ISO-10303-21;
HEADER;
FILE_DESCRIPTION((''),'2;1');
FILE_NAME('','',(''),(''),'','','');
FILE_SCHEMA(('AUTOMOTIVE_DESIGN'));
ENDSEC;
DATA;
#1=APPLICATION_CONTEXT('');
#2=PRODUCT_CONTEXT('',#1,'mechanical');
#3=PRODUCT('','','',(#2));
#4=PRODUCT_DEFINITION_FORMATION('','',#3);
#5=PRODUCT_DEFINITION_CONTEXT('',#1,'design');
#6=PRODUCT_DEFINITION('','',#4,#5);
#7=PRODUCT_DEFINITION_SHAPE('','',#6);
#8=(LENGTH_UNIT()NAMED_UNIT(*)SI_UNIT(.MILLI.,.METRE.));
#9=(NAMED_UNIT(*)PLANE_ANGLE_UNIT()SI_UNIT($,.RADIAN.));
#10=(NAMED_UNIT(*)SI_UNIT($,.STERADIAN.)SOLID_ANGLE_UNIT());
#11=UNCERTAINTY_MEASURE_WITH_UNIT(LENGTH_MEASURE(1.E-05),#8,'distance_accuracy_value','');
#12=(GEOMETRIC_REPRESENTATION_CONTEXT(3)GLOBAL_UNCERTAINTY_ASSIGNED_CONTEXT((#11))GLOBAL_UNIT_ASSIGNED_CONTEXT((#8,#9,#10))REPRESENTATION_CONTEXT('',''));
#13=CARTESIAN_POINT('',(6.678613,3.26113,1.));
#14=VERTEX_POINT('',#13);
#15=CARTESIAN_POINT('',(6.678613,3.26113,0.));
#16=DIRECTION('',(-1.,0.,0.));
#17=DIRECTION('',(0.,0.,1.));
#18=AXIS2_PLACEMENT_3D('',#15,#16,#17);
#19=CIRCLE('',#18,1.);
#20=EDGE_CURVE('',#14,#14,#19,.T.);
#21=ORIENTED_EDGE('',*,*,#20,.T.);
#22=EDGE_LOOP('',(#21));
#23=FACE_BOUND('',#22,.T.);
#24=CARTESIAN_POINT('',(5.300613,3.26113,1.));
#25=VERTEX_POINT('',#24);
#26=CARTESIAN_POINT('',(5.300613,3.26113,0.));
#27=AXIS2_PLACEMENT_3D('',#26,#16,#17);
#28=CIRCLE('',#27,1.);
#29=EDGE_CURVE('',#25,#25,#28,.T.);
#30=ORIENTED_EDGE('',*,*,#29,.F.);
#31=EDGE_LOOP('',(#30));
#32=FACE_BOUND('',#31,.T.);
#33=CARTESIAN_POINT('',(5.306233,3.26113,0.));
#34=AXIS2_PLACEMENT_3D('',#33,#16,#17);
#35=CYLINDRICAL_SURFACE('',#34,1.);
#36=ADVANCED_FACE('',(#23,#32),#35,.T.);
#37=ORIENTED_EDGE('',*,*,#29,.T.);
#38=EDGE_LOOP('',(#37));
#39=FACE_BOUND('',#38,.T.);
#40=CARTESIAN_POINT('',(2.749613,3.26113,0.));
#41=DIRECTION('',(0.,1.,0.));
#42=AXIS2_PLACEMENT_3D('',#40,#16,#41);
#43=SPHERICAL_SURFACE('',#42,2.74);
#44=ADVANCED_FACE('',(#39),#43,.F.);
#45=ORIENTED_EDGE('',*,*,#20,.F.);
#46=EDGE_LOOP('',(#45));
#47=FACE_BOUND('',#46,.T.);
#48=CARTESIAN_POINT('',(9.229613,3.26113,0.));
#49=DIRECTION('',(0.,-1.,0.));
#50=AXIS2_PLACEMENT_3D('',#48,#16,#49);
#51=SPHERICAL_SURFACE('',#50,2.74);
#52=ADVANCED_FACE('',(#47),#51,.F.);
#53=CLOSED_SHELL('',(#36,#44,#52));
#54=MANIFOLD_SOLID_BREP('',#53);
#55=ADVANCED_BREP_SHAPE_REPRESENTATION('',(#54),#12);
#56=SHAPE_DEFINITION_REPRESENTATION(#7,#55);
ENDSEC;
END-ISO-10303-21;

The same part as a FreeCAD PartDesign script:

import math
import FreeCAD as App
import Part
import Sketcher
Q = App.Units.Quantity

doc = App.newDocument("Part")
body = doc.addObject("PartDesign::Body", "Body")

# Sketch on XY plane
sketch1 = body.newObject("Sketcher::SketchObject", "Sketch")
sketch1.AttachmentSupport = (doc.getObject("XY_Plane"), [""])
sketch1.MapMode = "FlatFace"
sketch1.addGeometry(Part.LineSegment(App.Vector(5.5, 3.3, 0), App.Vector(6.5, 3.3, 0)), False)
sketch1.addGeometry(Part.ArcOfCircle(Part.Circle(App.Vector(9.2, 3.3, 0), App.Vector(0, 0, 1), 2.7), math.radians(159), math.radians(180)), False)
sketch1.addGeometry(Part.LineSegment(App.Vector(6.7, 4.3, 0), App.Vector(5.3, 4.3, 0)), False)
sketch1.addGeometry(Part.ArcOfCircle(Part.Circle(App.Vector(2.7, 3.3, 0), App.Vector(0, 0, 1), 2.7), math.radians(0), math.radians(21)), False)
sketch1.addGeometry(Part.LineSegment(App.Vector(2.7, 3.3, 0), App.Vector(9.2, 3.3, 0)), True)  # axis
sketch1.addConstraint(Sketcher.Constraint("Coincident", 0, 2, 1, 2))
sketch1.addConstraint(Sketcher.Constraint("Coincident", 1, 1, 2, 1))
sketch1.addConstraint(Sketcher.Constraint("Coincident", 2, 2, 3, 2))
sketch1.addConstraint(Sketcher.Constraint("Coincident", 3, 1, 0, 1))
sketch1.addConstraint(Sketcher.Constraint("Horizontal", 0))
sketch1.addConstraint(Sketcher.Constraint("Horizontal", 2))
sketch1.addConstraint(Sketcher.Constraint("Horizontal", 4))
sketch1.addConstraint(Sketcher.Constraint("Coincident", 4, 1, 3, 3))
sketch1.addConstraint(Sketcher.Constraint("Coincident", 4, 2, 1, 3))
sketch1.addConstraint(Sketcher.Constraint("Equal", 1, 3))
sketch1.addConstraint(Sketcher.Constraint("Horizontal", 3, 3, 0, 2))
sketch1.addConstraint(Sketcher.Constraint("DistanceX", 0, 1, 0, 2, Q("1 mm")))
sketch1.addConstraint(Sketcher.Constraint("Radius", 1, Q("2.74 mm")))
sketch1.addConstraint(Sketcher.Constraint("DistanceY", 0, 2, 1, 1, Q("1 mm")))
sketch1.addConstraint(Sketcher.Constraint("DistanceY", -1, 1, 1, 3, Q("3.26113 mm")))
sketch1.addConstraint(Sketcher.Constraint("DistanceX", -1, 1, 1, 3, Q("9.229613 mm")))
revolution = body.newObject("PartDesign::Revolution", "Revolution")
revolution.Profile = sketch1
revolution.ReferenceAxis = (sketch1, ["Axis0"])
revolution.Angle = 360

doc.recompute()
